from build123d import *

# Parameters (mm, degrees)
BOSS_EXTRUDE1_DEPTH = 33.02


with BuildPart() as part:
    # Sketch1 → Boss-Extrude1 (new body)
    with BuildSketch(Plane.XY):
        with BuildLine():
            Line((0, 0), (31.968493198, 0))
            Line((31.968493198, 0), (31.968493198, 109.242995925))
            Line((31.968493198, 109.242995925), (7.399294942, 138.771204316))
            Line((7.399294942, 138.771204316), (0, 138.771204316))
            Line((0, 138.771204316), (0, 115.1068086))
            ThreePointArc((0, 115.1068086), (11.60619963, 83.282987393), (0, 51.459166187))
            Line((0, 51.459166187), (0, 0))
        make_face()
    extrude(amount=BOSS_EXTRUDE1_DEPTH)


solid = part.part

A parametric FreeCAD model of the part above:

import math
import FreeCAD as App
import Part
import Sketcher
from FreeCAD import Vector
Q = App.Units.Quantity

doc = App.newDocument("Part")
body = doc.addObject("PartDesign::Body", "Body")

# Sketch on XY plane
sketch1 = doc.addObject("Sketcher::SketchObject", "Sketch")
body.addObject(sketch1)
sketch1.AttachmentSupport = (doc.XY_Plane, [""])
sketch1.MapMode = "FlatFace"
sketch1.addGeometry(Part.LineSegment(Vector(0, 0, 0), Vector(31.968493, 0, 0)), False)
sketch1.addGeometry(Part.LineSegment(Vector(31.968493, 0, 0), Vector(31.968493, 109.242996, 0)), False)
sketch1.addGeometry(Part.LineSegment(Vector(31.968493, 109.242996, 0), Vector(7.399295, 138.771204, 0)), False)
sketch1.addGeometry(Part.LineSegment(Vector(7.399295, 138.771204, 0), Vector(0, 138.771204, 0)), False)
sketch1.addGeometry(Part.LineSegment(Vector(0, 138.771204, 0), Vector(0, 115.106809, 0)), False)
sketch1.addGeometry(Part.ArcOfCircle(Part.Circle(Vector(-37.826841, 83.282987, 0), Vector(0, 0, 1), 49.43304), math.radians(-40.073991), math.radians(40.073991)), False)
sketch1.addGeometry(Part.LineSegment(Vector(0, 51.459166, 0), Vector(0, 0, 0)), False)
sketch1.addConstraint(Sketcher.Constraint("Coincident", 0, 2, 1, 1))
sketch1.addConstraint(Sketcher.Constraint("Coincident", 1, 2, 2, 1))
sketch1.addConstraint(Sketcher.Constraint("Coincident", 2, 2, 3, 1))
sketch1.addConstraint(Sketcher.Constraint("Coincident", 3, 2, 4, 1))
sketch1.addConstraint(Sketcher.Constraint("Coincident", 4, 2, 5, 2))
sketch1.addConstraint(Sketcher.Constraint("Coincident", 5, 1, 6, 1))
sketch1.addConstraint(Sketcher.Constraint("Coincident", 6, 2, 0, 1))
sketch1.addConstraint(Sketcher.Constraint("Horizontal", 0))
sketch1.addConstraint(Sketcher.Constraint("Vertical", 1))
sketch1.addConstraint(Sketcher.Constraint("Horizontal", 3))
sketch1.addConstraint(Sketcher.Constraint("Vertical", 4))
sketch1.addConstraint(Sketcher.Constraint("Vertical", 6))
sketch1.addConstraint(Sketcher.Constraint("Coincident", 6, 2, -1, 1))
sketch1.addConstraint(Sketcher.Constraint("PointOnObject", 3, 2, -2))
sketch1.addConstraint(Sketcher.Constraint("Radius", 5, 49.43304))
sketch1.addConstraint(Sketcher.Constraint("DistanceX", 2, 2, 1, 2, 24.569198))
sketch1.addConstraint(Sketcher.Constraint("DistanceX", 0, 1, 0, 2, 31.968493))
sketch1.addConstraint(Sketcher.Constraint("DistanceY", 1, 1, 1, 2, 109.242996))
sketch1.addConstraint(Sketcher.Constraint("DistanceY", 4, 2, 4, 1, 23.664396))
sketch1.addConstraint(Sketcher.Constraint("DistanceY", 6, 2, 6, 1, 51.459166))
sketch1.addConstraint(Sketcher.Constraint("DistanceX", 5, 3, -1, 1, 37.826841))
pad1 = doc.addObject("PartDesign::Pad", "Pad")
body.addObject(pad1)
pad1.Profile = sketch1
pad1.Length = Q("1.3 in")

doc.recompute()
